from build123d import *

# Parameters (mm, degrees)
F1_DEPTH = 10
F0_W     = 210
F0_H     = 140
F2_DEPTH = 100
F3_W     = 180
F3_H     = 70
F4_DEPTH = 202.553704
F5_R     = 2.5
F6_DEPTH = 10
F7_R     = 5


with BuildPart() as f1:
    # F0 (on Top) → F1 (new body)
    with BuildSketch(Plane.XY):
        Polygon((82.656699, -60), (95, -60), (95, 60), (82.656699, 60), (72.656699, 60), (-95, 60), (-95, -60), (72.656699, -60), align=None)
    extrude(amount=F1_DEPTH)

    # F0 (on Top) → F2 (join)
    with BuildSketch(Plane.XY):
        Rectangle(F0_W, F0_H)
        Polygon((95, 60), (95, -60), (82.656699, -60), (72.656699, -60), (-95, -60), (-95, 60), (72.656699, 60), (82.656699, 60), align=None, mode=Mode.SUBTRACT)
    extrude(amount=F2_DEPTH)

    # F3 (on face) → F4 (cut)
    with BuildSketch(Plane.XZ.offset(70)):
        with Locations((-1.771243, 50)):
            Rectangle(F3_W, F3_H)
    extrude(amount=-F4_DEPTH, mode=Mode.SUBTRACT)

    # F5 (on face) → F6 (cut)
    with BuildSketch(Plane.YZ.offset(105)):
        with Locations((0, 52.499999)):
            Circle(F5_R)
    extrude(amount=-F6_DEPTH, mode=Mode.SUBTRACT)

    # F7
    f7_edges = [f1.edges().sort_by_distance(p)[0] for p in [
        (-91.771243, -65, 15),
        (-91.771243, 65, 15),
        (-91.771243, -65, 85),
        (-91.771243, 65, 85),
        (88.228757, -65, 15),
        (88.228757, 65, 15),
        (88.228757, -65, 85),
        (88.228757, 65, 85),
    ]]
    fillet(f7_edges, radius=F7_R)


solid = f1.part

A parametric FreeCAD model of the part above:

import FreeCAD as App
import Part
import Sketcher
from FreeCAD import Vector


def edges_at(feature, points):
    """Names of the edges that pass closest to the given points."""
    edges = feature.Shape.Edges
    near = lambda p: min(range(len(edges)), key=lambda i: edges[i].distToShape(Part.Vertex(*p))[0])
    return sorted({f"Edge{near(p) + 1}" for p in points})


def add_polygon(sketch, points):
    """Adds a closed chain of lines whose ends are joined by coincident constraints."""
    first, n = sketch.GeometryCount, len(points)
    for a, b in zip(points, points[1:] + points[:1]):
        sketch.addGeometry(Part.LineSegment(App.Vector(*a, 0), App.Vector(*b, 0)), False)
    for i in range(n):
        sketch.addConstraint(Sketcher.Constraint("Coincident", first + i, 2, first + (i + 1) % n, 1))

doc = App.newDocument("Part")
body = doc.addObject("PartDesign::Body", "Body")

# Sketch on XY plane
sketch1 = body.newObject("Sketcher::SketchObject", "Sketch")
sketch1.AttachmentSupport = (doc.getObject("XY_Plane"), [""])
sketch1.MapMode = "FlatFace"
add_polygon(sketch1, [(95, -60), (95, 60), (-95, 60), (-95, -60)])  # lines 0-3
sketch1.addConstraint(Sketcher.Constraint("Vertical", 0))
sketch1.addConstraint(Sketcher.Constraint("Horizontal", 1))
sketch1.addConstraint(Sketcher.Constraint("Vertical", 2))
sketch1.addConstraint(Sketcher.Constraint("Horizontal", 3))
sketch1.addConstraint(Sketcher.Constraint("Symmetric", 0, 2, 2, 2, -1, 1))
sketch1.addConstraint(Sketcher.Constraint("DistanceX", 1, 2, 1, 1, 190.0))
sketch1.addConstraint(Sketcher.Constraint("DistanceY", 0, 1, 0, 2, 120.0))
pad1 = body.newObject("PartDesign::Pad", "Pad")
pad1.Profile = sketch1
pad1.Length = 10

# Sketch on XY plane
sketch2 = body.newObject("Sketcher::SketchObject", "Sketch001")
sketch2.AttachmentSupport = (doc.getObject("XY_Plane"), [""])
sketch2.MapMode = "FlatFace"
add_polygon(sketch2, [(-105, 70), (-105, -70), (105, -70), (105, 70)])  # lines 0-3
add_polygon(sketch2, [(-95, 60), (95, 60), (95, -60), (-95, -60)])  # lines 4-7
sketch2.addConstraint(Sketcher.Constraint("Vertical", 0))
sketch2.addConstraint(Sketcher.Constraint("Horizontal", 1))
sketch2.addConstraint(Sketcher.Constraint("Vertical", 2))
sketch2.addConstraint(Sketcher.Constraint("Horizontal", 3))
sketch2.addConstraint(Sketcher.Constraint("Horizontal", 4))
sketch2.addConstraint(Sketcher.Constraint("Vertical", 5))
sketch2.addConstraint(Sketcher.Constraint("Horizontal", 6))
sketch2.addConstraint(Sketcher.Constraint("Vertical", 7))
sketch2.addConstraint(Sketcher.Constraint("Symmetric", 0, 2, 2, 2, -1, 1))
sketch2.addConstraint(Sketcher.Constraint("Symmetric", 4, 2, 6, 2, -1, 1))
sketch2.addConstraint(Sketcher.Constraint("DistanceX", 1, 1, 1, 2, 210.0))
sketch2.addConstraint(Sketcher.Constraint("DistanceX", 4, 1, 4, 2, 190.0))
sketch2.addConstraint(Sketcher.Constraint("DistanceY", 0, 2, 0, 1, 140.0))
sketch2.addConstraint(Sketcher.Constraint("DistanceY", 5, 2, 5, 1, 120.0))
pad2 = body.newObject("PartDesign::Pad", "Pad001")
pad2.Profile = sketch2
pad2.Length = 100

# Sketch on XZ plane
sketch3 = body.newObject("Sketcher::SketchObject", "Sketch002")
sketch3.AttachmentSupport = (doc.getObject("XZ_Plane"), [""])
sketch3.MapMode = "FlatFace"
sketch3.AttachmentOffset = App.Placement(Vector(0, 0, 70), App.Rotation())
add_polygon(sketch3, [(-92, 85), (-92, 15), (88, 15), (88, 85)])  # lines 0-3
sketch3.addConstraint(Sketcher.Constraint("Vertical", 0))
sketch3.addConstraint(Sketcher.Constraint("Horizontal", 1))
sketch3.addConstraint(Sketcher.Constraint("Vertical", 2))
sketch3.addConstraint(Sketcher.Constraint("Horizontal", 3))
sketch3.addConstraint(Sketcher.Constraint("DistanceX", 1, 1, 1, 2, 180.0))
sketch3.addConstraint(Sketcher.Constraint("DistanceY", 0, 2, 0, 1, 70.0))
sketch3.addConstraint(Sketcher.Constraint("DistanceY", -1, 1, 0, 2, 15.0))
sketch3.addConstraint(Sketcher.Constraint("DistanceX", 0, 2, -1, 1, 91.771243))
pocket1 = body.newObject("PartDesign::Pocket", "Pocket")
pocket1.Profile = sketch3
pocket1.Length = 202.553704

# Sketch on YZ plane
sketch4 = body.newObject("Sketcher::SketchObject", "Sketch003")
sketch4.AttachmentSupport = (doc.getObject("YZ_Plane"), [""])
sketch4.MapMode = "FlatFace"
sketch4.AttachmentOffset = App.Placement(Vector(0, 0, 105), App.Rotation())
sketch4.addGeometry(Part.Circle(Vector(0, 52.5, 0), Vector(0, 0, 1), 2.5), False)
sketch4.addConstraint(Sketcher.Constraint("PointOnObject", 0, 3, -2))
sketch4.addConstraint(Sketcher.Constraint("Diameter", 0, 5.0))
sketch4.addConstraint(Sketcher.Constraint("DistanceY", -1, 1, 0, 3, 52.499999))
pocket2 = body.newObject("PartDesign::Pocket", "Pocket001")
pocket2.Profile = sketch4
pocket2.Length = 10
doc.recompute()

fillet = body.newObject("PartDesign::Fillet", "Fillet")
fillet.Base = (pocket2, edges_at(pocket2, [
    (-91.771, -65, 15),
    (-91.771, 65, 15),
    (-91.771, -65, 85),
    (-91.771, 65, 85),
    (88.229, -65, 15),
    (88.229, 65, 15),
    (88.229, -65, 85),
    (88.229, 65, 85),
]))
fillet.Radius = 5

doc.recompute()
